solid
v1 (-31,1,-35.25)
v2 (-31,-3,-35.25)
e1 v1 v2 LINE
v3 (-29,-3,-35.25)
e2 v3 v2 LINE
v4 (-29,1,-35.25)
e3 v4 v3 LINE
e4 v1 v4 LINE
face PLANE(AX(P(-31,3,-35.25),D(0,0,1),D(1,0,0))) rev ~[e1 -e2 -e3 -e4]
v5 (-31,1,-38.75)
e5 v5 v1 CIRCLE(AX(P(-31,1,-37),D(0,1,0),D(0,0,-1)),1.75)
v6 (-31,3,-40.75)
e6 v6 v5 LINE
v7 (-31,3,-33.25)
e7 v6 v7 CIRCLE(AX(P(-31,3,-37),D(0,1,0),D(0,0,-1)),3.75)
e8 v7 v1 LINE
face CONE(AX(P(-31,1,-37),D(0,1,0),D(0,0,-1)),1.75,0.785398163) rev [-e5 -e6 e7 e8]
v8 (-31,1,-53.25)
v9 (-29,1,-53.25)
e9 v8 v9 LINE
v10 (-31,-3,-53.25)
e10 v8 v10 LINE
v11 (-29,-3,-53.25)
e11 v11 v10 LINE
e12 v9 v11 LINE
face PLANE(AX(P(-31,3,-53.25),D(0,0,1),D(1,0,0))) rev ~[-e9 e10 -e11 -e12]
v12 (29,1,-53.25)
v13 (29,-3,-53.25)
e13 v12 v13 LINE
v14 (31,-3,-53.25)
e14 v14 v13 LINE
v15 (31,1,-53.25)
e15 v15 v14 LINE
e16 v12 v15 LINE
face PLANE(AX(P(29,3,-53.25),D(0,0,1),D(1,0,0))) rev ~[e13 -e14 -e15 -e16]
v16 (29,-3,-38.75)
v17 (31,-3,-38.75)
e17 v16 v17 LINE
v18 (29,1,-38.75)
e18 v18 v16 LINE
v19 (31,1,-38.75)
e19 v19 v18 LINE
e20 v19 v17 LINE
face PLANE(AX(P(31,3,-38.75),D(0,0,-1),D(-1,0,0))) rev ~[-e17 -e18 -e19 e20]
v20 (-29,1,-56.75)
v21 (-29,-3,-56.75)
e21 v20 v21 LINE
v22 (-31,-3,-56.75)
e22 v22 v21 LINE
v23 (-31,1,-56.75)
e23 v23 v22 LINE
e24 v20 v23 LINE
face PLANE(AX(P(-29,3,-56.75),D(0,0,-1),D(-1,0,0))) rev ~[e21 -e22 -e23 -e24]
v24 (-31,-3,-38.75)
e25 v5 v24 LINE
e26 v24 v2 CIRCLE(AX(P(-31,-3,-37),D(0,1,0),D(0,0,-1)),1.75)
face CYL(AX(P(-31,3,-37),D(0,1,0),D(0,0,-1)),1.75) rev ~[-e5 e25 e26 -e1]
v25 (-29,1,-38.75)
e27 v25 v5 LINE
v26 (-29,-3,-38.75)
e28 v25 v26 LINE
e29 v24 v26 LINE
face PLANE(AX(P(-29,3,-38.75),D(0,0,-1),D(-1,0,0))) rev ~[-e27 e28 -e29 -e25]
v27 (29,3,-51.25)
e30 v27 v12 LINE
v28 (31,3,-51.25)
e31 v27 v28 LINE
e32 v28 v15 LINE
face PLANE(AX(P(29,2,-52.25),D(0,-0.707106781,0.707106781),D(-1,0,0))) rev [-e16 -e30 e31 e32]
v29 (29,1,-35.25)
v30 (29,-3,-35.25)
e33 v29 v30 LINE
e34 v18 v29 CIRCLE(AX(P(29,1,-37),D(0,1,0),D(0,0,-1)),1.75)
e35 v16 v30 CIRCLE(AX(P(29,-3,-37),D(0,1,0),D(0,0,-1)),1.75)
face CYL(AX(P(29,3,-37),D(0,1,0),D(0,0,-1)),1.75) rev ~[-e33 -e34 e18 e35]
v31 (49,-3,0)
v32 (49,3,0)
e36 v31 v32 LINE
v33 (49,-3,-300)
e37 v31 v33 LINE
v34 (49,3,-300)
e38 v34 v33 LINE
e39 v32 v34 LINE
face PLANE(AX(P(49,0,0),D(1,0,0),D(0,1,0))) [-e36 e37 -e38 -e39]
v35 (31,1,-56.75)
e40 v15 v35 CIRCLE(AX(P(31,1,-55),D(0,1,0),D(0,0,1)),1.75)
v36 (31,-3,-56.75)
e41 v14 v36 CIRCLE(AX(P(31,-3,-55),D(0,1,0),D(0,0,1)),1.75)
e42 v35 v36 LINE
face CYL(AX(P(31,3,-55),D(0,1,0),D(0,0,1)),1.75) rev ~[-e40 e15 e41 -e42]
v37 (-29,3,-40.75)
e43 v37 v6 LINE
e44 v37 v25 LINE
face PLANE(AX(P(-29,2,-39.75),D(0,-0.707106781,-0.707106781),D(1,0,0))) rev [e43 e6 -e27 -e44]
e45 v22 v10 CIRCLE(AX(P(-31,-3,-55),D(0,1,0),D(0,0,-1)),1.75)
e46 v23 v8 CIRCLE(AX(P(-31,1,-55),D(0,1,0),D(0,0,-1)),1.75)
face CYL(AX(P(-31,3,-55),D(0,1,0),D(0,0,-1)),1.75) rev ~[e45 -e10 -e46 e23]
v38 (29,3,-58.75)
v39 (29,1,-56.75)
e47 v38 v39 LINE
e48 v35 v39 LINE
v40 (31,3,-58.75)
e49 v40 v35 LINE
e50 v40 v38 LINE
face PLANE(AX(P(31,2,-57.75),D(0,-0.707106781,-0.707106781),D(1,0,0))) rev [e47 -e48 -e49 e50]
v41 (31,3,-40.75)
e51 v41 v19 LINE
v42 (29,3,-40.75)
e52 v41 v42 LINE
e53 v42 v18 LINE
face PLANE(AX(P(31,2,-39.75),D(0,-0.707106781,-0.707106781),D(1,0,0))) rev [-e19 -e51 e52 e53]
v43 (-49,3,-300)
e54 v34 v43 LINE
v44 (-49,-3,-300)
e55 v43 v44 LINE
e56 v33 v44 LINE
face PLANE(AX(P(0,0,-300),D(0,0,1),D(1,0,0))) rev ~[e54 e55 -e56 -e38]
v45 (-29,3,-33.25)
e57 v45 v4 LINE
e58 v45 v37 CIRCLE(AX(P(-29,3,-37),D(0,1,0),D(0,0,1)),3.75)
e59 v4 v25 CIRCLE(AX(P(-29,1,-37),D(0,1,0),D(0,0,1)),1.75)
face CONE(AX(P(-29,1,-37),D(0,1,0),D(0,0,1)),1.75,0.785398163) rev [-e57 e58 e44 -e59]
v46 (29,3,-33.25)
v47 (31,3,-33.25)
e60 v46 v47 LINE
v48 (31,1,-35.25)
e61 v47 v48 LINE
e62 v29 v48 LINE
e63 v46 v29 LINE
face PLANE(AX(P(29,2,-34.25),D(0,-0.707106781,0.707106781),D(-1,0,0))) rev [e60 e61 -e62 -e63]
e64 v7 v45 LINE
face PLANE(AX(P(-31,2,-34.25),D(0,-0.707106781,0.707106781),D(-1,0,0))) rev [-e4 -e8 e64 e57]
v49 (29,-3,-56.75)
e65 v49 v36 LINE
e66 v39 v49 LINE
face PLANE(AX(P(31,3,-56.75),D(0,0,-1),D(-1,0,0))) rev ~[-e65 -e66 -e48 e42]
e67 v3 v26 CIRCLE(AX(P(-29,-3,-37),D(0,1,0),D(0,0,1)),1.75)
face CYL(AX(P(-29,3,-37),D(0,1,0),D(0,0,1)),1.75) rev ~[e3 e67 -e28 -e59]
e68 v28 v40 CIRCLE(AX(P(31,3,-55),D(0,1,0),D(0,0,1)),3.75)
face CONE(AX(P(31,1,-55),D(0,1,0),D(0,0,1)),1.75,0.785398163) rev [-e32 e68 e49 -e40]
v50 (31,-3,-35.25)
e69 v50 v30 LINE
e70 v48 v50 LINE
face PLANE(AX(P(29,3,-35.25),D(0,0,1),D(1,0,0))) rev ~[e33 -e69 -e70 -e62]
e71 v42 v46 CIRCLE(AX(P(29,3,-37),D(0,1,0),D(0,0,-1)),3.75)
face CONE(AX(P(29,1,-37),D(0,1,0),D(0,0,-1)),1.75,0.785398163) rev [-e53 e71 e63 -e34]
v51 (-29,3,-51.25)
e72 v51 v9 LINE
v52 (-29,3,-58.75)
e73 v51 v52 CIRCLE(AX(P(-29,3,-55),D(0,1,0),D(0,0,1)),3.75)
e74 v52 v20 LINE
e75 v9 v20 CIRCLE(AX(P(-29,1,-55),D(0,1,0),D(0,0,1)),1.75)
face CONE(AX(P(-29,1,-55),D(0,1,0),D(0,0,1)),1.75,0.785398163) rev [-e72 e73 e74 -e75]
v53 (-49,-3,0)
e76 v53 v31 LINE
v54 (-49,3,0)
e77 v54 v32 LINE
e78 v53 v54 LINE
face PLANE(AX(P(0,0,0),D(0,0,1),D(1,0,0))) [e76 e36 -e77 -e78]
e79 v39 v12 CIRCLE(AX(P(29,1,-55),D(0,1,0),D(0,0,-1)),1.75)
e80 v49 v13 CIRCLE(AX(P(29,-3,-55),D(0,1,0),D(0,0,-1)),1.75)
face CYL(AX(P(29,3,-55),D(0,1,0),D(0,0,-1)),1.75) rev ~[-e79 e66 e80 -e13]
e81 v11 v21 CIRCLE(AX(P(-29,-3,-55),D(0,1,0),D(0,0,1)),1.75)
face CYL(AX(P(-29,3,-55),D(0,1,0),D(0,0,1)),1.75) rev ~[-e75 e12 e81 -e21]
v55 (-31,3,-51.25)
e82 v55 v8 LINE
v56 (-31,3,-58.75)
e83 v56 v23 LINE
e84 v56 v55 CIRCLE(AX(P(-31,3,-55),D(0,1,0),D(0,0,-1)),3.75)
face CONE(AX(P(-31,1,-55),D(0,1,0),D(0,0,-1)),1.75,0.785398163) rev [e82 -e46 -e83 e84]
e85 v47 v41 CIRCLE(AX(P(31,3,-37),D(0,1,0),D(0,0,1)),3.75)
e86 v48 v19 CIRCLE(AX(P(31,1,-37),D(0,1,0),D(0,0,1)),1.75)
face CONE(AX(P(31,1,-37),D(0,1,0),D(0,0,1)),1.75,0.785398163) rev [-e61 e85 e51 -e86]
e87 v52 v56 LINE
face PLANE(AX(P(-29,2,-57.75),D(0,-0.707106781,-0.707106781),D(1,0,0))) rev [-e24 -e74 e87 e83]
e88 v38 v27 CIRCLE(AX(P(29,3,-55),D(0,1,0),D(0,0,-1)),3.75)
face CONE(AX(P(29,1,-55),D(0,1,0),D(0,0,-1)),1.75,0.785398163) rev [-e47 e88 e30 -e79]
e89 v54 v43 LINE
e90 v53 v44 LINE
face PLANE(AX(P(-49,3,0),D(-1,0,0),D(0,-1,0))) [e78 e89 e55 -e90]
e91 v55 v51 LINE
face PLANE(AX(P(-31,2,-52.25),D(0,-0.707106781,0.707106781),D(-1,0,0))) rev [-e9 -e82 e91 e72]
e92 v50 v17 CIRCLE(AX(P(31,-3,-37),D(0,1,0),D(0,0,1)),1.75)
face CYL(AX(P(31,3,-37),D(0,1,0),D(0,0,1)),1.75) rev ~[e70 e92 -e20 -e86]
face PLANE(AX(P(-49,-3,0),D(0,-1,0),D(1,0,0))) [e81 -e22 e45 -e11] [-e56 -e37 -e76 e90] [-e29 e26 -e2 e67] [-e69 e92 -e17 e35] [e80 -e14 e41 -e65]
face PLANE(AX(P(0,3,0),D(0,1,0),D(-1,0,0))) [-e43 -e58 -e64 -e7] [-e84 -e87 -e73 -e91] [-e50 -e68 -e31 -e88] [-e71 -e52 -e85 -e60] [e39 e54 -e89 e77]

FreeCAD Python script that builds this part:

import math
import FreeCAD as App
import Part
import Sketcher
from FreeCAD import Vector
Q = App.Units.Quantity


def edges_at(feature, points):
    """Names of the edges that pass closest to the given points."""
    edges = feature.Shape.Edges
    near = lambda p: min(range(len(edges)), key=lambda i: edges[i].distToShape(Part.Vertex(*p))[0])
    return sorted({f"Edge{near(p) + 1}" for p in points})

doc = App.newDocument("Part")
body = doc.addObject("PartDesign::Body", "Body")

sketch1 = body.newObject("Sketcher::SketchObject", "Sketch")
sketch1.AttachmentSupport = (doc.getObject("XY_Plane"), [""])
sketch1.MapMode = "FlatFace"
sketch1.addGeometry(Part.LineSegment(Vector(-49, 3, 0), Vector(-49, -3, 0)), False)
sketch1.addGeometry(Part.LineSegment(Vector(-49, -3, 0), Vector(49, -3, 0)), False)
sketch1.addGeometry(Part.LineSegment(Vector(49, -3, 0), Vector(49, 3, 0)), False)
sketch1.addGeometry(Part.LineSegment(Vector(49, 3, 0), Vector(-49, 3, 0)), False)
sketch1.addConstraint(Sketcher.Constraint("Coincident", 0, 2, 1, 1))
sketch1.addConstraint(Sketcher.Constraint("Coincident", 1, 2, 2, 1))
sketch1.addConstraint(Sketcher.Constraint("Coincident", 2, 2, 3, 1))
sketch1.addConstraint(Sketcher.Constraint("Coincident", 3, 2, 0, 1))
sketch1.addConstraint(Sketcher.Constraint("Vertical", 0))
sketch1.addConstraint(Sketcher.Constraint("Horizontal", 1))
sketch1.addConstraint(Sketcher.Constraint("Vertical", 2))
sketch1.addConstraint(Sketcher.Constraint("Horizontal", 3))
sketch1.addConstraint(Sketcher.Constraint("Symmetric", 0, 2, 2, 2, -1, 1))
sketch1.addConstraint(Sketcher.Constraint("DistanceX", 1, 1, 1, 2, Q("98 mm")))
sketch1.addConstraint(Sketcher.Constraint("DistanceY", 0, 2, 0, 1, Q("6 mm")))
pad1 = body.newObject("PartDesign::Pad", "Pad")
pad1.Profile = sketch1
pad1.Length = 300
pad1.Reversed = True

sketch2 = body.newObject("Sketcher::SketchObject", "Sketch001")
sketch2.AttachmentSupport = (doc.getObject("XZ_Plane"), [""])
sketch2.MapMode = "FlatFace"
sketch2.AttachmentOffset = App.Placement(Vector(0, 0, -3), App.Rotation())
sketch2.addGeometry(Part.ArcOfCircle(Part.Circle(Vector(-31, -37, 0), Vector(0, 0, 1), 1.8), math.radians(90), math.radians(270)), False)
sketch2.addGeometry(Part.LineSegment(Vector(-31, -35.2, 0), Vector(-29, -35.2, 0)), False)
sketch2.addGeometry(Part.ArcOfCircle(Part.Circle(Vector(-29, -37, 0), Vector(0, 0, 1), 1.8), math.radians(-90), math.radians(90)), False)
sketch2.addGeometry(Part.LineSegment(Vector(-29, -38.8, 0), Vector(-31, -38.8, 0)), False)
sketch2.addGeometry(Part.LineSegment(Vector(-31, -53.2, 0), Vector(-29, -53.2, 0)), False)
sketch2.addGeometry(Part.ArcOfCircle(Part.Circle(Vector(-29, -55, 0), Vector(0, 0, 1), 1.8), math.radians(-90), math.radians(90)), False)
sketch2.addGeometry(Part.LineSegment(Vector(-29, -56.8, 0), Vector(-31, -56.8, 0)), False)
sketch2.addGeometry(Part.ArcOfCircle(Part.Circle(Vector(-31, -55, 0), Vector(0, 0, 1), 1.8), math.radians(90), math.radians(270)), False)
sketch2.addGeometry(Part.LineSegment(Vector(29, -35.2, 0), Vector(31, -35.2, 0)), False)
sketch2.addGeometry(Part.ArcOfCircle(Part.Circle(Vector(31, -37, 0), Vector(0, 0, 1), 1.8), math.radians(-90), math.radians(90)), False)
sketch2.addGeometry(Part.LineSegment(Vector(31, -38.8, 0), Vector(29, -38.8, 0)), False)
sketch2.addGeometry(Part.ArcOfCircle(Part.Circle(Vector(29, -37, 0), Vector(0, 0, 1), 1.8), math.radians(90), math.radians(270)), False)
sketch2.addGeometry(Part.LineSegment(Vector(29, -53.2, 0), Vector(31, -53.2, 0)), False)
sketch2.addGeometry(Part.ArcOfCircle(Part.Circle(Vector(31, -55, 0), Vector(0, 0, 1), 1.8), math.radians(-90), math.radians(90)), False)
sketch2.addGeometry(Part.LineSegment(Vector(31, -56.8, 0), Vector(29, -56.8, 0)), False)
sketch2.addGeometry(Part.ArcOfCircle(Part.Circle(Vector(29, -55, 0), Vector(0, 0, 1), 1.8), math.radians(90), math.radians(270)), False)
sketch2.addConstraint(Sketcher.Constraint("Tangent", 0, 1, 1, 1))
sketch2.addConstraint(Sketcher.Constraint("Tangent", 1, 2, 2, 2))
sketch2.addConstraint(Sketcher.Constraint("Tangent", 2, 1, 3, 1))
sketch2.addConstraint(Sketcher.Constraint("Tangent", 3, 2, 0, 2))
sketch2.addConstraint(Sketcher.Constraint("Tangent", 4, 2, 5, 2))
sketch2.addConstraint(Sketcher.Constraint("Tangent", 5, 1, 6, 1))
sketch2.addConstraint(Sketcher.Constraint("Tangent", 6, 2, 7, 2))
sketch2.addConstraint(Sketcher.Constraint("Tangent", 7, 1, 4, 1))
sketch2.addConstraint(Sketcher.Constraint("Tangent", 8, 2, 9, 2))
sketch2.addConstraint(Sketcher.Constraint("Tangent", 9, 1, 10, 1))
sketch2.addConstraint(Sketcher.Constraint("Tangent", 10, 2, 11, 2))
sketch2.addConstraint(Sketcher.Constraint("Tangent", 11, 1, 8, 1))
sketch2.addConstraint(Sketcher.Constraint("Tangent", 12, 2, 13, 2))
sketch2.addConstraint(Sketcher.Constraint("Tangent", 13, 1, 14, 1))
sketch2.addConstraint(Sketcher.Constraint("Tangent", 14, 2, 15, 2))
sketch2.addConstraint(Sketcher.Constraint("Tangent", 15, 1, 12, 1))
sketch2.addConstraint(Sketcher.Constraint("Horizontal", 1))
sketch2.addConstraint(Sketcher.Constraint("Horizontal", 3))
sketch2.addConstraint(Sketcher.Constraint("Horizontal", 4))
sketch2.addConstraint(Sketcher.Constraint("Horizontal", 6))
sketch2.addConstraint(Sketcher.Constraint("Horizontal", 8))
sketch2.addConstraint(Sketcher.Constraint("Horizontal", 10))
sketch2.addConstraint(Sketcher.Constraint("Horizontal", 12))
sketch2.addConstraint(Sketcher.Constraint("Horizontal", 14))
sketch2.addConstraint(Sketcher.Constraint("Equal", 2, 5))
sketch2.addConstraint(Sketcher.Constraint("Equal", 7, 9))
sketch2.addConstraint(Sketcher.Constraint("Equal", 11, 13))
sketch2.addConstraint(Sketcher.Constraint("Symmetric", 0, 3, 9, 3, -2))
sketch2.addConstraint(Sketcher.Constraint("Symmetric", 7, 3, 13, 3, -2))
sketch2.addConstraint(Sketcher.Constraint("Vertical", 2, 3, 5, 3))
sketch2.addConstraint(Sketcher.Constraint("Vertical", 0, 3, 7, 3))
sketch2.addConstraint(Sketcher.Constraint("Vertical", 11, 3, 15, 3))
sketch2.addConstraint(Sketcher.Constraint("Equal", 6, 8))
sketch2.addConstraint(Sketcher.Constraint("DistanceX", 1, 1, 1, 2, Q("2 mm")))
sketch2.addConstraint(Sketcher.Constraint("Radius", 0, Q("1.75 mm")))
sketch2.addConstraint(Sketcher.Constraint("DistanceY", 0, 3, -1, 1, Q("37 mm")))
sketch2.addConstraint(Sketcher.Constraint("DistanceY", 5, 3, 2, 3, Q("18 mm")))
sketch2.addConstraint(Sketcher.Constraint("DistanceX", 2, 3, 9, 3, Q("60 mm")))
pocket1 = body.newObject("PartDesign::Pocket", "Pocket")
pocket1.Profile = sketch2
pocket1.Length = 300
pocket1.Reversed = True
doc.recompute()

chamfer = body.newObject("PartDesign::Chamfer", "Chamfer")
chamfer.Base = (pocket1, edges_at(pocket1, [
    (-27.25, 3, -37),
    (-30, 3, -35.25),
    (-32.75, 3, -37),
    (-30, 3, -38.75),
    (-27.25, 3, -55),
    (-30, 3, -53.25),
    (-32.75, 3, -55),
    (-30, 3, -56.75),
    (30, 3, -35.25),
    (27.25, 3, -37),
    (30, 3, -38.75),
    (32.75, 3, -37),
    (32.75, 3, -55),
    (30, 3, -53.25),
    (27.25, 3, -55),
    (30, 3, -56.75),
]))
chamfer.Size = 2

doc.recompute()
